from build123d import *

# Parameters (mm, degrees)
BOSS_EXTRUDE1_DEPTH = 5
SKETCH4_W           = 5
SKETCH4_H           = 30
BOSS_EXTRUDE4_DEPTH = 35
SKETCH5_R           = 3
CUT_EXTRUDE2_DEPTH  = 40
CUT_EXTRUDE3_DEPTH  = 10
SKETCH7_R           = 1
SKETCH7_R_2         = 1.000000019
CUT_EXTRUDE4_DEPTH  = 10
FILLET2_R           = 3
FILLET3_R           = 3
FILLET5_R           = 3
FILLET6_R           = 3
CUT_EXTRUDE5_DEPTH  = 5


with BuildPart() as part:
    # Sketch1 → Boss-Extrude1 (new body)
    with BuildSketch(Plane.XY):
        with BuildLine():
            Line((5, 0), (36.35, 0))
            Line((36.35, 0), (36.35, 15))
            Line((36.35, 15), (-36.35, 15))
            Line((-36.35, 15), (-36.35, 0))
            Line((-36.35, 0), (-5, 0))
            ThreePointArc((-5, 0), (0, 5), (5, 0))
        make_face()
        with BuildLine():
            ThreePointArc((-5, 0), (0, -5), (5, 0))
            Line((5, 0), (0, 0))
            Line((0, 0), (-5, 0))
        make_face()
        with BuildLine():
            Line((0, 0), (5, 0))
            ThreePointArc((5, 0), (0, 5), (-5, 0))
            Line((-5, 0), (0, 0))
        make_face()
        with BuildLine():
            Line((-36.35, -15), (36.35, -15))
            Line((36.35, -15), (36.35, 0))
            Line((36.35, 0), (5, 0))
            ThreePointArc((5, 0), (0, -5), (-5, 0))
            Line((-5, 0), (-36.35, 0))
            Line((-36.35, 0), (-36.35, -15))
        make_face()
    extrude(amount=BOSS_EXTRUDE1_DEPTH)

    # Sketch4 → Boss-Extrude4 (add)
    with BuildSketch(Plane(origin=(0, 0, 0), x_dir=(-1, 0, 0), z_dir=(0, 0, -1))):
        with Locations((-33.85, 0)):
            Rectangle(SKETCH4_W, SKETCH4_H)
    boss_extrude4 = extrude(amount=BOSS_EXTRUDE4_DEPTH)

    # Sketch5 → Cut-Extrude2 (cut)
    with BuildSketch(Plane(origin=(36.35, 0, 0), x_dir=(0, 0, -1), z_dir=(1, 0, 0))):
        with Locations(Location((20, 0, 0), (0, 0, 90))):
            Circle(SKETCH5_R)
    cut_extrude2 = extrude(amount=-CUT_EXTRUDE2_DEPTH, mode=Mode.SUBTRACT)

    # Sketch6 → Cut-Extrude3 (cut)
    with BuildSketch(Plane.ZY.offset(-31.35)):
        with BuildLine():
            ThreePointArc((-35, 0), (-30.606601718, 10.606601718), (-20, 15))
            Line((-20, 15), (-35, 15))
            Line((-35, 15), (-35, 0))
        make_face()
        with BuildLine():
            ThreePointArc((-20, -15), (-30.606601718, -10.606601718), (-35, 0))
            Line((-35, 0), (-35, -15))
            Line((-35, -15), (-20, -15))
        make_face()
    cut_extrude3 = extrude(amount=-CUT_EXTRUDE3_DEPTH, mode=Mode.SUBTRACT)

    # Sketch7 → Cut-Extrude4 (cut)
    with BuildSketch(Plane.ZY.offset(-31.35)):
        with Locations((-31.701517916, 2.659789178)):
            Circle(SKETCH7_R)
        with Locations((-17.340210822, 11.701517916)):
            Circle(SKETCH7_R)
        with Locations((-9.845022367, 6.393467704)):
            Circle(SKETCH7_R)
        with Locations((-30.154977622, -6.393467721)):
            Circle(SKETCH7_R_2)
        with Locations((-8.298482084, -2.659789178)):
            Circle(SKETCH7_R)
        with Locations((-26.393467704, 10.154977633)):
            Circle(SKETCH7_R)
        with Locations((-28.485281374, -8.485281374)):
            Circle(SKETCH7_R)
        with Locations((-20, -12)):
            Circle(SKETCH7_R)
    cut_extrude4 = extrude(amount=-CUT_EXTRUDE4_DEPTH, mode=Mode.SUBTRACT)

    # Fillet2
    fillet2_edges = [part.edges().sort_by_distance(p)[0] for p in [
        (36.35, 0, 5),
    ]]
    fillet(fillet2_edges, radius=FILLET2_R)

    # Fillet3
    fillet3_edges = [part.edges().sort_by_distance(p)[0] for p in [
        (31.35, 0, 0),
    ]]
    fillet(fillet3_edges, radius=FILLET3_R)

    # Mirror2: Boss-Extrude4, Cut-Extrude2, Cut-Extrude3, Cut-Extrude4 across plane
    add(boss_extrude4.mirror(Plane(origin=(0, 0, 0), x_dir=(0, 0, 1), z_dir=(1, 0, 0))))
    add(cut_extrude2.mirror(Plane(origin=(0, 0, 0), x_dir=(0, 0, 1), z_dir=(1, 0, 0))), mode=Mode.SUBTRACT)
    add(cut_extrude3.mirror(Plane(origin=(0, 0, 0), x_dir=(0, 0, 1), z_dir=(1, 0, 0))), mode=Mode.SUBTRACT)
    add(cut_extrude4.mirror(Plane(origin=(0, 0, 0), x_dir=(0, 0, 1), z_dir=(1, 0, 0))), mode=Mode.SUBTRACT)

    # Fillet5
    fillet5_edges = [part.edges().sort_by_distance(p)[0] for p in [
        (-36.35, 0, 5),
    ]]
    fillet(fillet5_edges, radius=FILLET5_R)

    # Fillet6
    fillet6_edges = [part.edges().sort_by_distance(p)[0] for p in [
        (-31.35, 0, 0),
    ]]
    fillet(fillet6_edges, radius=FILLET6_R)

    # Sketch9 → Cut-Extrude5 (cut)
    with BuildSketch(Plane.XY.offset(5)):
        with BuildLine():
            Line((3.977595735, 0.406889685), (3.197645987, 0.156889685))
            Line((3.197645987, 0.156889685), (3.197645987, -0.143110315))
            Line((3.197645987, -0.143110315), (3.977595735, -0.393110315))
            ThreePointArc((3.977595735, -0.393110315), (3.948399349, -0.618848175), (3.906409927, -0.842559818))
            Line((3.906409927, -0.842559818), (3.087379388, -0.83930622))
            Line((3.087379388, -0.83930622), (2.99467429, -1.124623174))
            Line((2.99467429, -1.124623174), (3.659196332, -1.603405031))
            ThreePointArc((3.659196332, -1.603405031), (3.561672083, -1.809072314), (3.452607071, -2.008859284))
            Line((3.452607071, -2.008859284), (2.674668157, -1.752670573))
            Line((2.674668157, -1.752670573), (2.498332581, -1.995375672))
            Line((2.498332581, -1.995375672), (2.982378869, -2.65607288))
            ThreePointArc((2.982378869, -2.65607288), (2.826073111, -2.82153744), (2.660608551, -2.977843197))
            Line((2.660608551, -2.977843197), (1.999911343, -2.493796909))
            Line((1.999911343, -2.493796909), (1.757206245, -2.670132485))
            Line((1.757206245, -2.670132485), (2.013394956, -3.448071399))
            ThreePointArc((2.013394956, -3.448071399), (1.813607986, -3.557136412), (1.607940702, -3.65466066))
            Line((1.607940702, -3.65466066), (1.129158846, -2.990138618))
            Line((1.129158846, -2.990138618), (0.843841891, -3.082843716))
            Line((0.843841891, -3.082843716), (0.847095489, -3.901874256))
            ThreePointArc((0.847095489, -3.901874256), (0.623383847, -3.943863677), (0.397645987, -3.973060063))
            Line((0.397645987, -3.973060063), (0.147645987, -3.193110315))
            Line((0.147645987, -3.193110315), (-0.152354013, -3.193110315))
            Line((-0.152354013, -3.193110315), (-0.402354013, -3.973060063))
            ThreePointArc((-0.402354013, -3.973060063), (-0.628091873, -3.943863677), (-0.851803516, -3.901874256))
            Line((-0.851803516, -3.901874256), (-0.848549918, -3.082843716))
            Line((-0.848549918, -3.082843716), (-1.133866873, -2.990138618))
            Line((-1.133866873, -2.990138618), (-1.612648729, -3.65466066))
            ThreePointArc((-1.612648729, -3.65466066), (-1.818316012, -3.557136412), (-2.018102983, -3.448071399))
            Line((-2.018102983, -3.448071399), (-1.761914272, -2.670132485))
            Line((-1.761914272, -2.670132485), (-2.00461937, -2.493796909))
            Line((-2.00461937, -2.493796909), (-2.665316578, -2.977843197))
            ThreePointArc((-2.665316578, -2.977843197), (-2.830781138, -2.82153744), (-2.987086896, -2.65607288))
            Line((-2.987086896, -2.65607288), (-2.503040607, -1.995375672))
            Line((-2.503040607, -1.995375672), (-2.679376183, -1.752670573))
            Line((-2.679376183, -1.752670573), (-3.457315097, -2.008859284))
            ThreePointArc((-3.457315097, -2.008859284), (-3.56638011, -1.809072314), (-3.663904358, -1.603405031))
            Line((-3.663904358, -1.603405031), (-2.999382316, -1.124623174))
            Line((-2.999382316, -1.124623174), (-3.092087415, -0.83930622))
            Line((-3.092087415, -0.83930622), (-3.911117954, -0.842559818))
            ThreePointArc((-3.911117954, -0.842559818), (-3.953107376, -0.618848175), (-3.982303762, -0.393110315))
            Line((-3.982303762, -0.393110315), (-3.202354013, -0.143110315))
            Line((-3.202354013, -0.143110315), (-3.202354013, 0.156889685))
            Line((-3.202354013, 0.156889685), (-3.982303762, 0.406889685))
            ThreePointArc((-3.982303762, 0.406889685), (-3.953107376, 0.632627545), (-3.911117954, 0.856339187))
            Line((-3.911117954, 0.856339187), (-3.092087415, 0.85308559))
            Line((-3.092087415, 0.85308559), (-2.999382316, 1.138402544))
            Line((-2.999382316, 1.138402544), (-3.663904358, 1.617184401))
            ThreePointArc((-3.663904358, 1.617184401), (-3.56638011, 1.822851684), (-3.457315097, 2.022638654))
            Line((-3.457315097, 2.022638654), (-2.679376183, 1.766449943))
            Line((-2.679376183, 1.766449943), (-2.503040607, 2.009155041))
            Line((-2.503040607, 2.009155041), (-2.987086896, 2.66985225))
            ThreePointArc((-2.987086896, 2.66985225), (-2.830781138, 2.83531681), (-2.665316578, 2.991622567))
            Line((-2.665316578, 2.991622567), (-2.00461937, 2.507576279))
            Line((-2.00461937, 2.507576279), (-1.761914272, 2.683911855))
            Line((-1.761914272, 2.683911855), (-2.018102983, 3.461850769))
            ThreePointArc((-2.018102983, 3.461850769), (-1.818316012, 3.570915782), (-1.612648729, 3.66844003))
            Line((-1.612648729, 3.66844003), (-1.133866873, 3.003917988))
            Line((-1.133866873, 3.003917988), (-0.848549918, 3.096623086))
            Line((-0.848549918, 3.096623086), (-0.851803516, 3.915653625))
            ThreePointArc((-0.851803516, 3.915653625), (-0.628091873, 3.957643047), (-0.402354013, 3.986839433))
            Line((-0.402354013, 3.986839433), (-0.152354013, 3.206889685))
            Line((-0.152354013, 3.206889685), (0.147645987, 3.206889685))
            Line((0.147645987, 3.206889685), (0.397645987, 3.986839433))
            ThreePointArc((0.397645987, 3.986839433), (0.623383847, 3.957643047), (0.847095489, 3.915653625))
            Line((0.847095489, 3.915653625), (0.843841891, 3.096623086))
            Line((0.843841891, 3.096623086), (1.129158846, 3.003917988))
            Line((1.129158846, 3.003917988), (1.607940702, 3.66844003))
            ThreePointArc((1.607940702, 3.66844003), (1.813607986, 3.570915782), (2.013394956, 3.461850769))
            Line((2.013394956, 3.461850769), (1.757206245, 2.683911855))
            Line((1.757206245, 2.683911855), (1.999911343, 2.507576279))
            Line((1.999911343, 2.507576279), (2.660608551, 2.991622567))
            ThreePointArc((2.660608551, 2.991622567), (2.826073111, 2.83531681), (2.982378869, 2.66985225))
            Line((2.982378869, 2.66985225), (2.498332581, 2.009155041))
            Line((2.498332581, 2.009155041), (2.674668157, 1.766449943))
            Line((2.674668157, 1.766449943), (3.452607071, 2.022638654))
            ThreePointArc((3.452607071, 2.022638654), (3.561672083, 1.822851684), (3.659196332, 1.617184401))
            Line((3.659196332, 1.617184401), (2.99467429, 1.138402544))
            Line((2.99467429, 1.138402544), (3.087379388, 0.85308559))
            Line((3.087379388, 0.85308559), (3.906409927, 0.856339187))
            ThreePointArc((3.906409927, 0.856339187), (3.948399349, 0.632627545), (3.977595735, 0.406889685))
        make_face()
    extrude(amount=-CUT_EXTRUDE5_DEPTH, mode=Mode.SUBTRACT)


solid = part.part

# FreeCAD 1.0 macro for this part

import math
import FreeCAD as App
import Part
import Sketcher

V = App.Vector


def edges_at(feature, points):
    """Names of the edges that pass closest to the given points."""
    edges = feature.Shape.Edges
    near = lambda p: min(range(len(edges)), key=lambda i: edges[i].distToShape(Part.Vertex(*p))[0])
    return sorted({f"Edge{near(p) + 1}" for p in points})

doc = App.newDocument("Part")
body = doc.addObject("PartDesign::Body", "Body")

# Sketch on XY plane
sketch1 = body.newObject("Sketcher::SketchObject", "Sketch")
sketch1.AttachmentSupport = (doc.getObject("XY_Plane"), [""])
sketch1.MapMode = "FlatFace"
sketch1.addGeometry(Part.LineSegment(V(-36, 15, 0), V(-36, -15, 0)), False)
sketch1.addGeometry(Part.LineSegment(V(-36, -15, 0), V(36, -15, 0)), False)
sketch1.addGeometry(Part.LineSegment(V(36, -15, 0), V(36, 15, 0)), False)
sketch1.addGeometry(Part.LineSegment(V(36, 15, 0), V(-36, 15, 0)), False)
sketch1.addConstraint(Sketcher.Constraint("Coincident", 0, 2, 1, 1))
sketch1.addConstraint(Sketcher.Constraint("Coincident", 1, 2, 2, 1))
sketch1.addConstraint(Sketcher.Constraint("Coincident", 2, 2, 3, 1))
sketch1.addConstraint(Sketcher.Constraint("Coincident", 3, 2, 0, 1))
sketch1.addConstraint(Sketcher.Constraint("Vertical", 0))
sketch1.addConstraint(Sketcher.Constraint("Horizontal", 1))
sketch1.addConstraint(Sketcher.Constraint("Vertical", 2))
sketch1.addConstraint(Sketcher.Constraint("Horizontal", 3))
sketch1.addConstraint(Sketcher.Constraint("Symmetric", 0, 2, 2, 2, -1, 1))
sketch1.addConstraint(Sketcher.Constraint("DistanceY", 0, 2, 0, 1, 30.0))
sketch1.addConstraint(Sketcher.Constraint("DistanceX", 1, 1, 1, 2, 72.7))
pad1 = body.newObject("PartDesign::Pad", "Pad")
pad1.Profile = sketch1
pad1.Length = 5

# Sketch on XY plane
sketch2 = body.newObject("Sketcher::SketchObject", "Sketch001")
sketch2.AttachmentSupport = (doc.getObject("XY_Plane"), [""])
sketch2.MapMode = "FlatFace"
sketch2.addGeometry(Part.LineSegment(V(36, 15, 0), V(36, -15, 0)), False)
sketch2.addGeometry(Part.LineSegment(V(36, -15, 0), V(31, -15, 0)), False)
sketch2.addGeometry(Part.LineSegment(V(31, -15, 0), V(31, 15, 0)), False)
sketch2.addGeometry(Part.LineSegment(V(31, 15, 0), V(36, 15, 0)), False)
sketch2.addConstraint(Sketcher.Constraint("Coincident", 0, 2, 1, 1))
sketch2.addConstraint(Sketcher.Constraint("Coincident", 1, 2, 2, 1))
sketch2.addConstraint(Sketcher.Constraint("Coincident", 2, 2, 3, 1))
sketch2.addConstraint(Sketcher.Constraint("Coincident", 3, 2, 0, 1))
sketch2.addConstraint(Sketcher.Constraint("Vertical", 0))
sketch2.addConstraint(Sketcher.Constraint("Horizontal", 1))
sketch2.addConstraint(Sketcher.Constraint("Vertical", 2))
sketch2.addConstraint(Sketcher.Constraint("Horizontal", 3))
sketch2.addConstraint(Sketcher.Constraint("DistanceX", 1, 2, 1, 1, 5.0))
sketch2.addConstraint(Sketcher.Constraint("DistanceY", 0, 2, 0, 1, 30.0))
sketch2.addConstraint(Sketcher.Constraint("DistanceY", 0, 2, -1, 1, 15.0))
sketch2.addConstraint(Sketcher.Constraint("DistanceX", -1, 1, 0, 2, 36.35))
pad2 = body.newObject("PartDesign::Pad", "Pad001")
pad2.Profile = sketch2
pad2.Length = 35
pad2.Reversed = True

# Sketch on YZ plane
sketch3 = body.newObject("Sketcher::SketchObject", "Sketch002")
sketch3.AttachmentSupport = (doc.getObject("YZ_Plane"), [""])
sketch3.MapMode = "FlatFace"
sketch3.AttachmentOffset = App.Placement(V(0, 0, 36.35), App.Rotation())
sketch3.addGeometry(Part.Circle(V(0, -20, 0), V(0, 0, 1), 3), False)
sketch3.addConstraint(Sketcher.Constraint("PointOnObject", 0, 3, -2))
sketch3.addConstraint(Sketcher.Constraint("Diameter", 0, 6.0))
sketch3.addConstraint(Sketcher.Constraint("DistanceY", 0, 3, -1, 1, 20.0))
pocket1 = body.newObject("PartDesign::Pocket", "Pocket")
pocket1.Profile = sketch3
pocket1.Length = 40

# Sketch on YZ plane
sketch4 = body.newObject("Sketcher::SketchObject", "Sketch003")
sketch4.AttachmentSupport = (doc.getObject("YZ_Plane"), [""])
sketch4.MapMode = "FlatFace"
sketch4.AttachmentOffset = App.Placement(V(0, 0, 31.35), App.Rotation())
sketch4.addGeometry(Part.ArcOfCircle(Part.Circle(V(0, -20, 0), V(0, 0, 1), 15), math.radians(-90), math.radians(0)), False)
sketch4.addGeometry(Part.LineSegment(V(15, -20, 0), V(15, -35, 0)), False)
sketch4.addGeometry(Part.LineSegment(V(15, -35, 0), V(0, -35, 0)), False)
sketch4.addGeometry(Part.ArcOfCircle(Part.Circle(V(0, -20, 0), V(0, 0, 1), 15), math.radians(180), math.radians(270)), False)
sketch4.addGeometry(Part.LineSegment(V(0, -35, 0), V(-15, -35, 0)), False)
sketch4.addGeometry(Part.LineSegment(V(-15, -35, 0), V(-15, -20, 0)), False)
sketch4.addConstraint(Sketcher.Constraint("Tangent", 0, 2, 1, 1))
sketch4.addConstraint(Sketcher.Constraint("Coincident", 1, 2, 2, 1))
sketch4.addConstraint(Sketcher.Constraint("Tangent", 2, 2, 0, 1))
sketch4.addConstraint(Sketcher.Constraint("Tangent", 3, 2, 4, 1))
sketch4.addConstraint(Sketcher.Constraint("Coincident", 4, 2, 5, 1))
sketch4.addConstraint(Sketcher.Constraint("Tangent", 5, 2, 3, 1))
sketch4.addConstraint(Sketcher.Constraint("Vertical", 1))
sketch4.addConstraint(Sketcher.Constraint("Horizontal", 2))
sketch4.addConstraint(Sketcher.Constraint("Horizontal", 4))
sketch4.addConstraint(Sketcher.Constraint("Vertical", 5))
sketch4.addConstraint(Sketcher.Constraint("Coincident", 3, 3, 0, 3))
sketch4.addConstraint(Sketcher.Constraint("Equal", 0, 3))
sketch4.addConstraint(Sketcher.Constraint("PointOnObject", 0, 3, -2))
sketch4.addConstraint(Sketcher.Constraint("Radius", 0, 15.0))
sketch4.addConstraint(Sketcher.Constraint("DistanceY", 0, 3, -1, 1, 20.0))
pocket2 = body.newObject("PartDesign::Pocket", "Pocket001")
pocket2.Profile = sketch4
pocket2.Length = 10
pocket2.Reversed = True

# Sketch on YZ plane
sketch5 = body.newObject("Sketcher::SketchObject", "Sketch004")
sketch5.AttachmentSupport = (doc.getObject("YZ_Plane"), [""])
sketch5.MapMode = "FlatFace"
sketch5.AttachmentOffset = App.Placement(V(0, 0, 31.35), App.Rotation())
sketch5.addGeometry(Part.Circle(V(2.7, -31.7, 0), V(0, 0, 1), 1), False)
sketch5.addGeometry(Part.Circle(V(11.7, -17.3, 0), V(0, 0, 1), 1), False)
sketch5.addGeometry(Part.Circle(V(6.4, -9.8, 0), V(0, 0, 1), 1), False)
sketch5.addGeometry(Part.Circle(V(-6.4, -30.2, 0), V(0, 0, 1), 1), False)
sketch5.addGeometry(Part.Circle(V(-2.7, -8.3, 0), V(0, 0, 1), 1), False)
sketch5.addGeometry(Part.Circle(V(10.2, -26.4, 0), V(0, 0, 1), 1), False)
sketch5.addGeometry(Part.Circle(V(-8.5, -28.5, 0), V(0, 0, 1), 1), False)
sketch5.addGeometry(Part.Circle(V(-12, -20, 0), V(0, 0, 1), 1), False)
sketch5.addConstraint(Sketcher.Constraint("Equal", 0, 1))
sketch5.addConstraint(Sketcher.Constraint("Equal", 1, 2))
sketch5.addConstraint(Sketcher.Constraint("Equal", 2, 3))
sketch5.addConstraint(Sketcher.Constraint("Equal", 3, 4))
sketch5.addConstraint(Sketcher.Constraint("Equal", 4, 5))
sketch5.addConstraint(Sketcher.Constraint("Equal", 5, 6))
sketch5.addConstraint(Sketcher.Constraint("Equal", 6, 7))
sketch5.addConstraint(Sketcher.Constraint("Diameter", 0, 2.0))
sketch5.addConstraint(Sketcher.Constraint("DistanceX", 7, 3, -1, 1, 12.0))
sketch5.addConstraint(Sketcher.Constraint("DistanceY", 7, 3, -1, 1, 20.0))
sketch5.addConstraint(Sketcher.Constraint("DistanceY", 6, 3, 4, 3, 20.186799))
sketch5.addConstraint(Sketcher.Constraint("DistanceX", 6, 3, 1, 3, 20.186799))
sketch5.addConstraint(Sketcher.Constraint("DistanceX", -1, 1, 0, 3, 2.659789))
sketch5.addConstraint(Sketcher.Constraint("DistanceY", 1, 3, -1, 1, 17.340211))
sketch5.addConstraint(Sketcher.Constraint("DistanceX", 4, 3, -1, 1, 2.659789))
sketch5.addConstraint(Sketcher.Constraint("DistanceX", 6, 3, -1, 1, 8.485281))
sketch5.addConstraint(Sketcher.Constraint("DistanceY", 6, 3, -1, 1, 28.485281))
sketch5.addConstraint(Sketcher.Constraint("DistanceX", 2, 3, 1, 3, 5.30805))
sketch5.addConstraint(Sketcher.Constraint("DistanceY", 1, 3, 2, 3, 7.495188))
sketch5.addConstraint(Sketcher.Constraint("DistanceY", 0, 3, 3, 3, 1.54654))
sketch5.addConstraint(Sketcher.Constraint("DistanceX", 3, 3, 4, 3, 3.733679))
sketch5.addConstraint(Sketcher.Constraint("DistanceX", 5, 3, 1, 3, 1.54654))
sketch5.addConstraint(Sketcher.Constraint("DistanceY", 0, 3, 5, 3, 5.30805))
sketch5.addConstraint(Sketcher.Constraint("DistanceY", 0, 3, -1, 1, 31.701518))
pocket3 = body.newObject("PartDesign::Pocket", "Pocket002")
pocket3.Profile = sketch5
pocket3.Length = 10
pocket3.Reversed = True
doc.recompute()

fillet = body.newObject("PartDesign::Fillet", "Fillet")
fillet.Base = (pocket3, edges_at(pocket3, [(36.35, 0, 5)]))
fillet.Radius = 3
doc.recompute()

fillet2 = body.newObject("PartDesign::Fillet", "Fillet001")
fillet2.Base = (fillet, edges_at(fillet, [(31.35, 0, 0)]))
fillet2.Radius = 3
doc.recompute()

mirrored = body.newObject("PartDesign::Mirrored", "Mirrored")
mirrored.Originals = [pad2, pocket1, pocket2, pocket3]
mirrored.MirrorPlane = (doc.getObject("YZ_Plane"), [""])
body.Tip = mirrored
doc.recompute()

fillet3 = body.newObject("PartDesign::Fillet", "Fillet002")
fillet3.Base = (mirrored, edges_at(mirrored, [(-36.35, 0, 5)]))
fillet3.Radius = 3
doc.recompute()

fillet4 = body.newObject("PartDesign::Fillet", "Fillet003")
fillet4.Base = (fillet3, edges_at(fillet3, [(-31.35, 0, 0)]))
fillet4.Radius = 3

# Sketch on XY plane
sketch6 = body.newObject("Sketcher::SketchObject", "Sketch005")
sketch6.AttachmentSupport = (doc.getObject("XY_Plane"), [""])
sketch6.MapMode = "FlatFace"
sketch6.AttachmentOffset = App.Placement(V(0, 0, 5), App.Rotation())
sketch6.addGeometry(Part.LineSegment(V(3.197646, 0.15689, 0), V(3.977596, 0.40689, 0)), False)
sketch6.addGeometry(Part.ArcOfCircle(Part.Circle(V(-0.002354, 0.00689, 0), V(0, 0, 1), 4), math.radians(5.73917), math.radians(12.26083)), False)
sketch6.addGeometry(Part.LineSegment(V(3.90641, 0.856339, 0), V(3.087379, 0.853086, 0)), False)
sketch6.addGeometry(Part.LineSegment(V(3.087379, 0.853086, 0), V(2.994674, 1.138403, 0)), False)
sketch6.addGeometry(Part.LineSegment(V(2.994674, 1.138403, 0), V(3.659196, 1.617184, 0)), False)
sketch6.addGeometry(Part.ArcOfCircle(Part.Circle(V(-0.002354, 0.00689, 0), V(0, 0, 1), 4), math.radians(23.739171), math.radians(30.260829)), False)
sketch6.addGeometry(Part.LineSegment(V(3.452607, 2.022639, 0), V(2.674668, 1.76645, 0)), False)
sketch6.addGeometry(Part.LineSegment(V(2.674668, 1.76645, 0), V(2.498333, 2.009155, 0)), False)
sketch6.addGeometry(Part.LineSegment(V(2.498333, 2.009155, 0), V(2.982379, 2.669852, 0)), False)
sketch6.addGeometry(Part.ArcOfCircle(Part.Circle(V(-0.002354, 0.00689, 0), V(0, 0, 1), 4), math.radians(41.739171), math.radians(48.26083)), False)
sketch6.addGeometry(Part.LineSegment(V(2.660609, 2.991623, 0), V(1.999911, 2.507576, 0)), False)
sketch6.addGeometry(Part.LineSegment(V(1.999911, 2.507576, 0), V(1.757206, 2.683912, 0)), False)
sketch6.addGeometry(Part.LineSegment(V(1.757206, 2.683912, 0), V(2.013395, 3.461851, 0)), False)
sketch6.addGeometry(Part.ArcOfCircle(Part.Circle(V(-0.002354, 0.00689, 0), V(0, 0, 1), 4), math.radians(59.73917), math.radians(66.26083)), False)
sketch6.addGeometry(Part.LineSegment(V(1.607941, 3.66844, 0), V(1.129159, 3.003918, 0)), False)
sketch6.addGeometry(Part.LineSegment(V(1.129159, 3.003918, 0), V(0.843842, 3.096623, 0)), False)
sketch6.addGeometry(Part.LineSegment(V(0.843842, 3.096623, 0), V(0.847095, 3.915654, 0)), False)
sketch6.addGeometry(Part.ArcOfCircle(Part.Circle(V(-0.002354, 0.00689, 0), V(0, 0, 1), 4), math.radians(77.73917), math.radians(84.26083)), False)
sketch6.addGeometry(Part.LineSegment(V(0.397646, 3.986839, 0), V(0.147646, 3.20689, 0)), False)
sketch6.addGeometry(Part.LineSegment(V(0.147646, 3.20689, 0), V(-0.152354, 3.20689, 0)), False)
sketch6.addGeometry(Part.LineSegment(V(-0.152354, 3.20689, 0), V(-0.402354, 3.986839, 0)), False)
sketch6.addGeometry(Part.ArcOfCircle(Part.Circle(V(-0.002354, 0.00689, 0), V(0, 0, 1), 4), math.radians(95.73917), math.radians(102.26083)), False)
sketch6.addGeometry(Part.LineSegment(V(-0.851804, 3.915654, 0), V(-0.84855, 3.096623, 0)), False)
sketch6.addGeometry(Part.LineSegment(V(-0.84855, 3.096623, 0), V(-1.133867, 3.003918, 0)), False)
sketch6.addGeometry(Part.LineSegment(V(-1.133867, 3.003918, 0), V(-1.612649, 3.66844, 0)), False)
sketch6.addGeometry(Part.ArcOfCircle(Part.Circle(V(-0.002354, 0.00689, 0), V(0, 0, 1), 4), math.radians(113.73917), math.radians(120.26083)), False)
sketch6.addGeometry(Part.LineSegment(V(-2.018103, 3.461851, 0), V(-1.761914, 2.683912, 0)), False)
sketch6.addGeometry(Part.LineSegment(V(-1.761914, 2.683912, 0), V(-2.004619, 2.507576, 0)), False)
sketch6.addGeometry(Part.LineSegment(V(-2.004619, 2.507576, 0), V(-2.665317, 2.991623, 0)), False)
sketch6.addGeometry(Part.ArcOfCircle(Part.Circle(V(-0.002354, 0.00689, 0), V(0, 0, 1), 4), math.radians(131.73917), math.radians(138.260829)), False)
sketch6.addGeometry(Part.LineSegment(V(-2.987087, 2.669852, 0), V(-2.503041, 2.009155, 0)), False)
sketch6.addGeometry(Part.LineSegment(V(-2.503041, 2.009155, 0), V(-2.679376, 1.76645, 0)), False)
sketch6.addGeometry(Part.LineSegment(V(-2.679376, 1.76645, 0), V(-3.457315, 2.022639, 0)), False)
sketch6.addGeometry(Part.ArcOfCircle(Part.Circle(V(-0.002354, 0.00689, 0), V(0, 0, 1), 4), math.radians(149.73917), math.radians(156.26083)), False)
sketch6.addGeometry(Part.LineSegment(V(-3.663904, 1.617184, 0), V(-2.999382, 1.138403, 0)), False)
sketch6.addGeometry(Part.LineSegment(V(-2.999382, 1.138403, 0), V(-3.092087, 0.853086, 0)), False)
sketch6.addGeometry(Part.LineSegment(V(-3.092087, 0.853086, 0), V(-3.911118, 0.856339, 0)), False)
sketch6.addGeometry(Part.ArcOfCircle(Part.Circle(V(-0.002354, 0.00689, 0), V(0, 0, 1), 4), math.radians(167.73917), math.radians(174.26083)), False)
sketch6.addGeometry(Part.LineSegment(V(-3.982304, 0.40689, 0), V(-3.202354, 0.15689, 0)), False)
sketch6.addGeometry(Part.LineSegment(V(-3.202354, 0.15689, 0), V(-3.202354, -0.14311, 0)), False)
sketch6.addGeometry(Part.LineSegment(V(-3.202354, -0.14311, 0), V(-3.982304, -0.39311, 0)), False)
sketch6.addGeometry(Part.ArcOfCircle(Part.Circle(V(-0.002354, 0.00689, 0), V(0, 0, 1), 4), math.radians(-174.26083), math.radians(-167.73917)), False)
sketch6.addGeometry(Part.LineSegment(V(-3.911118, -0.84256, 0), V(-3.092087, -0.839306, 0)), False)
sketch6.addGeometry(Part.LineSegment(V(-3.092087, -0.839306, 0), V(-2.999382, -1.124623, 0)), False)
sketch6.addGeometry(Part.LineSegment(V(-2.999382, -1.124623, 0), V(-3.663904, -1.603405, 0)), False)
sketch6.addGeometry(Part.ArcOfCircle(Part.Circle(V(-0.002354, 0.00689, 0), V(0, 0, 1), 4), math.radians(-156.26083), math.radians(-149.73917)), False)
sketch6.addGeometry(Part.LineSegment(V(-3.457315, -2.008859, 0), V(-2.679376, -1.752671, 0)), False)
sketch6.addGeometry(Part.LineSegment(V(-2.679376, -1.752671, 0), V(-2.503041, -1.995376, 0)), False)
sketch6.addGeometry(Part.LineSegment(V(-2.503041, -1.995376, 0), V(-2.987087, -2.656073, 0)), False)
sketch6.addGeometry(Part.ArcOfCircle(Part.Circle(V(-0.002354, 0.00689, 0), V(0, 0, 1), 4), math.radians(-138.260829), math.radians(-131.73917)), False)
sketch6.addGeometry(Part.LineSegment(V(-2.665317, -2.977843, 0), V(-2.004619, -2.493797, 0)), False)
sketch6.addGeometry(Part.LineSegment(V(-2.004619, -2.493797, 0), V(-1.761914, -2.670132, 0)), False)
sketch6.addGeometry(Part.LineSegment(V(-1.761914, -2.670132, 0), V(-2.018103, -3.448071, 0)), False)
sketch6.addGeometry(Part.ArcOfCircle(Part.Circle(V(-0.002354, 0.00689, 0), V(0, 0, 1), 4), math.radians(-120.26083), math.radians(-113.73917)), False)
sketch6.addGeometry(Part.LineSegment(V(-1.612649, -3.654661, 0), V(-1.133867, -2.990139, 0)), False)
sketch6.addGeometry(Part.LineSegment(V(-1.133867, -2.990139, 0), V(-0.84855, -3.082844, 0)), False)
sketch6.addGeometry(Part.LineSegment(V(-0.84855, -3.082844, 0), V(-0.851804, -3.901874, 0)), False)
sketch6.addGeometry(Part.ArcOfCircle(Part.Circle(V(-0.002354, 0.00689, 0), V(0, 0, 1), 4), math.radians(-102.260829), math.radians(-95.739171)), False)
sketch6.addGeometry(Part.LineSegment(V(-0.402354, -3.97306, 0), V(-0.152354, -3.19311, 0)), False)
sketch6.addGeometry(Part.LineSegment(V(-0.152354, -3.19311, 0), V(0.147646, -3.19311, 0)), False)
sketch6.addGeometry(Part.LineSegment(V(0.147646, -3.19311, 0), V(0.397646, -3.97306, 0)), False)
sketch6.addGeometry(Part.ArcOfCircle(Part.Circle(V(-0.002354, 0.00689, 0), V(0, 0, 1), 4), math.radians(-84.260829), math.radians(-77.739171)), False)
sketch6.addGeometry(Part.LineSegment(V(0.847095, -3.901874, 0), V(0.843842, -3.082844, 0)), False)
sketch6.addGeometry(Part.LineSegment(V(0.843842, -3.082844, 0), V(1.129159, -2.990139, 0)), False)
sketch6.addGeometry(Part.LineSegment(V(1.129159, -2.990139, 0), V(1.607941, -3.654661, 0)), False)
sketch6.addGeometry(Part.ArcOfCircle(Part.Circle(V(-0.002354, 0.006889, 0), V(0, 0, 1), 4), math.radians(-66.26083), math.radians(-59.73917)), False)
sketch6.addGeometry(Part.LineSegment(V(2.013395, -3.448071, 0), V(1.757206, -2.670132, 0)), False)
sketch6.addGeometry(Part.LineSegment(V(1.757206, -2.670132, 0), V(1.999911, -2.493797, 0)), False)
sketch6.addGeometry(Part.LineSegment(V(1.999911, -2.493797, 0), V(2.660609, -2.977843, 0)), False)
sketch6.addGeometry(Part.ArcOfCircle(Part.Circle(V(-0.002354, 0.00689, 0), V(0, 0, 1), 4), math.radians(-48.26083), math.radians(-41.739171)), False)
sketch6.addGeometry(Part.LineSegment(V(2.982379, -2.656073, 0), V(2.498333, -1.995376, 0)), False)
sketch6.addGeometry(Part.LineSegment(V(2.498333, -1.995376, 0), V(2.674668, -1.752671, 0)), False)
sketch6.addGeometry(Part.LineSegment(V(2.674668, -1.752671, 0), V(3.452607, -2.008859, 0)), False)
sketch6.addGeometry(Part.ArcOfCircle(Part.Circle(V(-0.002354, 0.00689, 0), V(0, 0, 1), 4), math.radians(-30.260829), math.radians(-23.739171)), False)
sketch6.addGeometry(Part.LineSegment(V(3.659196, -1.603405, 0), V(2.994674, -1.124623, 0)), False)
sketch6.addGeometry(Part.LineSegment(V(2.994674, -1.124623, 0), V(3.087379, -0.839306, 0)), False)
sketch6.addGeometry(Part.LineSegment(V(3.087379, -0.839306, 0), V(3.90641, -0.84256, 0)), False)
sketch6.addGeometry(Part.ArcOfCircle(Part.Circle(V(-0.002354, 0.00689, 0), V(0, 0, 1), 4), math.radians(-12.26083), math.radians(-5.73917)), False)
sketch6.addGeometry(Part.LineSegment(V(3.977596, -0.39311, 0), V(3.197646, -0.14311, 0)), False)
sketch6.addGeometry(Part.LineSegment(V(3.197646, -0.14311, 0), V(3.197646, 0.15689, 0)), False)
sketch6.addConstraint(Sketcher.Constraint("Coincident", 0, 2, 1, 1))
sketch6.addConstraint(Sketcher.Constraint("Coincident", 1, 2, 2, 1))
sketch6.addConstraint(Sketcher.Constraint("Coincident", 2, 2, 3, 1))
sketch6.addConstraint(Sketcher.Constraint("Coincident", 3, 2, 4, 1))
sketch6.addConstraint(Sketcher.Constraint("Coincident", 4, 2, 5, 1))
sketch6.addConstraint(Sketcher.Constraint("Coincident", 5, 2, 6, 1))
sketch6.addConstraint(Sketcher.Constraint("Coincident", 6, 2, 7, 1))
sketch6.addConstraint(Sketcher.Constraint("Coincident", 7, 2, 8, 1))
sketch6.addConstraint(Sketcher.Constraint("Coincident", 8, 2, 9, 1))
sketch6.addConstraint(Sketcher.Constraint("Coincident", 9, 2, 10, 1))
sketch6.addConstraint(Sketcher.Constraint("Coincident", 10, 2, 11, 1))
sketch6.addConstraint(Sketcher.Constraint("Coincident", 11, 2, 12, 1))
sketch6.addConstraint(Sketcher.Constraint("Coincident", 12, 2, 13, 1))
sketch6.addConstraint(Sketcher.Constraint("Coincident", 13, 2, 14, 1))
sketch6.addConstraint(Sketcher.Constraint("Coincident", 14, 2, 15, 1))
sketch6.addConstraint(Sketcher.Constraint("Coincident", 15, 2, 16, 1))
sketch6.addConstraint(Sketcher.Constraint("Coincident", 16, 2, 17, 1))
sketch6.addConstraint(Sketcher.Constraint("Coincident", 17, 2, 18, 1))
sketch6.addConstraint(Sketcher.Constraint("Coincident", 18, 2, 19, 1))
sketch6.addConstraint(Sketcher.Constraint("Coincident", 19, 2, 20, 1))
sketch6.addConstraint(Sketcher.Constraint("Coincident", 20, 2, 21, 1))
sketch6.addConstraint(Sketcher.Constraint("Coincident", 21, 2, 22, 1))
sketch6.addConstraint(Sketcher.Constraint("Coincident", 22, 2, 23, 1))
sketch6.addConstraint(Sketcher.Constraint("Coincident", 23, 2, 24, 1))
sketch6.addConstraint(Sketcher.Constraint("Coincident", 24, 2, 25, 1))
sketch6.addConstraint(Sketcher.Constraint("Coincident", 25, 2, 26, 1))
sketch6.addConstraint(Sketcher.Constraint("Coincident", 26, 2, 27, 1))
sketch6.addConstraint(Sketcher.Constraint("Coincident", 27, 2, 28, 1))
sketch6.addConstraint(Sketcher.Constraint("Coincident", 28, 2, 29, 1))
sketch6.addConstraint(Sketcher.Constraint("Coincident", 29, 2, 30, 1))
sketch6.addConstraint(Sketcher.Constraint("Coincident", 30, 2, 31, 1))
sketch6.addConstraint(Sketcher.Constraint("Coincident", 31, 2, 32, 1))
sketch6.addConstraint(Sketcher.Constraint("Coincident", 32, 2, 33, 1))
sketch6.addConstraint(Sketcher.Constraint("Coincident", 33, 2, 34, 1))
sketch6.addConstraint(Sketcher.Constraint("Coincident", 34, 2, 35, 1))
sketch6.addConstraint(Sketcher.Constraint("Coincident", 35, 2, 36, 1))
sketch6.addConstraint(Sketcher.Constraint("Coincident", 36, 2, 37, 1))
sketch6.addConstraint(Sketcher.Constraint("Coincident", 37, 2, 38, 1))
sketch6.addConstraint(Sketcher.Constraint("Coincident", 38, 2, 39, 1))
sketch6.addConstraint(Sketcher.Constraint("Coincident", 39, 2, 40, 1))
sketch6.addConstraint(Sketcher.Constraint("Coincident", 40, 2, 41, 1))
sketch6.addConstraint(Sketcher.Constraint("Coincident", 41, 2, 42, 1))
sketch6.addConstraint(Sketcher.Constraint("Coincident", 42, 2, 43, 1))
sketch6.addConstraint(Sketcher.Constraint("Coincident", 43, 2, 44, 1))
sketch6.addConstraint(Sketcher.Constraint("Coincident", 44, 2, 45, 1))
sketch6.addConstraint(Sketcher.Constraint("Coincident", 45, 2, 46, 1))
sketch6.addConstraint(Sketcher.Constraint("Coincident", 46, 2, 47, 1))
sketch6.addConstraint(Sketcher.Constraint("Coincident", 47, 2, 48, 1))
sketch6.addConstraint(Sketcher.Constraint("Coincident", 48, 2, 49, 1))
sketch6.addConstraint(Sketcher.Constraint("Coincident", 49, 2, 50, 1))
sketch6.addConstraint(Sketcher.Constraint("Coincident", 50, 2, 51, 1))
sketch6.addConstraint(Sketcher.Constraint("Coincident", 51, 2, 52, 1))
sketch6.addConstraint(Sketcher.Constraint("Coincident", 52, 2, 53, 1))
sketch6.addConstraint(Sketcher.Constraint("Coincident", 53, 2, 54, 1))
sketch6.addConstraint(Sketcher.Constraint("Coincident", 54, 2, 55, 1))
sketch6.addConstraint(Sketcher.Constraint("Coincident", 55, 2, 56, 1))
sketch6.addConstraint(Sketcher.Constraint("Coincident", 56, 2, 57, 1))
sketch6.addConstraint(Sketcher.Constraint("Coincident", 57, 2, 58, 1))
sketch6.addConstraint(Sketcher.Constraint("Coincident", 58, 2, 59, 1))
sketch6.addConstraint(Sketcher.Constraint("Coincident", 59, 2, 60, 1))
sketch6.addConstraint(Sketcher.Constraint("Coincident", 60, 2, 61, 1))
sketch6.addConstraint(Sketcher.Constraint("Coincident", 61, 2, 62, 1))
sketch6.addConstraint(Sketcher.Constraint("Coincident", 62, 2, 63, 1))
sketch6.addConstraint(Sketcher.Constraint("Coincident", 63, 2, 64, 1))
sketch6.addConstraint(Sketcher.Constraint("Coincident", 64, 2, 65, 1))
sketch6.addConstraint(Sketcher.Constraint("Coincident", 65, 2, 66, 1))
sketch6.addConstraint(Sketcher.Constraint("Coincident", 66, 2, 67, 1))
sketch6.addConstraint(Sketcher.Constraint("Coincident", 67, 2, 68, 1))
sketch6.addConstraint(Sketcher.Constraint("Coincident", 68, 2, 69, 1))
sketch6.addConstraint(Sketcher.Constraint("Coincident", 69, 2, 70, 1))
sketch6.addConstraint(Sketcher.Constraint("Coincident", 70, 2, 71, 1))
sketch6.addConstraint(Sketcher.Constraint("Coincident", 71, 2, 72, 1))
sketch6.addConstraint(Sketcher.Constraint("Coincident", 72, 2, 73, 1))
sketch6.addConstraint(Sketcher.Constraint("Coincident", 73, 2, 74, 1))
sketch6.addConstraint(Sketcher.Constraint("Coincident", 74, 2, 75, 1))
sketch6.addConstraint(Sketcher.Constraint("Coincident", 75, 2, 76, 1))
sketch6.addConstraint(Sketcher.Constraint("Coincident", 76, 2, 77, 1))
sketch6.addConstraint(Sketcher.Constraint("Coincident", 77, 2, 78, 1))
sketch6.addConstraint(Sketcher.Constraint("Coincident", 78, 2, 79, 1))
sketch6.addConstraint(Sketcher.Constraint("Coincident", 79, 2, 0, 1))
sketch6.addConstraint(Sketcher.Constraint("Horizontal", 19))
sketch6.addConstraint(Sketcher.Constraint("Vertical", 39))
sketch6.addConstraint(Sketcher.Constraint("Horizontal", 59))
sketch6.addConstraint(Sketcher.Constraint("Vertical", 79))
sketch6.addConstraint(Sketcher.Constraint("Coincident", 5, 3, 1, 3))
sketch6.addConstraint(Sketcher.Constraint("Coincident", 9, 3, 1, 3))
sketch6.addConstraint(Sketcher.Constraint("Coincident", 13, 3, 1, 3))
sketch6.addConstraint(Sketcher.Constraint("Coincident", 17, 3, 1, 3))
sketch6.addConstraint(Sketcher.Constraint("Coincident", 21, 3, 1, 3))
sketch6.addConstraint(Sketcher.Constraint("Coincident", 25, 3, 1, 3))
sketch6.addConstraint(Sketcher.Constraint("Coincident", 29, 3, 1, 3))
sketch6.addConstraint(Sketcher.Constraint("Coincident", 33, 3, 1, 3))
sketch6.addConstraint(Sketcher.Constraint("Coincident", 37, 3, 1, 3))
sketch6.addConstraint(Sketcher.Constraint("Coincident", 41, 3, 1, 3))
sketch6.addConstraint(Sketcher.Constraint("Coincident", 45, 3, 1, 3))
sketch6.addConstraint(Sketcher.Constraint("Coincident", 49, 3, 1, 3))
sketch6.addConstraint(Sketcher.Constraint("Coincident", 53, 3, 1, 3))
sketch6.addConstraint(Sketcher.Constraint("Coincident", 57, 3, 1, 3))
sketch6.addConstraint(Sketcher.Constraint("Coincident", 61, 3, 1, 3))
sketch6.addConstraint(Sketcher.Constraint("Coincident", 65, 3, 1, 3))
sketch6.addConstraint(Sketcher.Constraint("Coincident", 69, 3, 1, 3))
sketch6.addConstraint(Sketcher.Constraint("Coincident", 73, 3, 1, 3))
sketch6.addConstraint(Sketcher.Constraint("Coincident", 77, 3, 1, 3))
sketch6.addConstraint(Sketcher.Constraint("Radius", 1, 4.0))
sketch6.addConstraint(Sketcher.Constraint("Radius", 5, 4.0))
sketch6.addConstraint(Sketcher.Constraint("Radius", 9, 4.0))
sketch6.addConstraint(Sketcher.Constraint("Radius", 13, 4.0))
sketch6.addConstraint(Sketcher.Constraint("Radius", 17, 4.0))
sketch6.addConstraint(Sketcher.Constraint("Radius", 21, 4.0))
sketch6.addConstraint(Sketcher.Constraint("Radius", 25, 4.0))
sketch6.addConstraint(Sketcher.Constraint("Radius", 29, 4.0))
sketch6.addConstraint(Sketcher.Constraint("Radius", 33, 4.0))
sketch6.addConstraint(Sketcher.Constraint("Radius", 37, 4.0))
sketch6.addConstraint(Sketcher.Constraint("Radius", 41, 4.0))
sketch6.addConstraint(Sketcher.Constraint("Radius", 45, 4.0))
sketch6.addConstraint(Sketcher.Constraint("Radius", 49, 4.0))
sketch6.addConstraint(Sketcher.Constraint("Radius", 53, 4.0))
sketch6.addConstraint(Sketcher.Constraint("Radius", 57, 4.0))
sketch6.addConstraint(Sketcher.Constraint("Radius", 61, 4.0))
sketch6.addConstraint(Sketcher.Constraint("Radius", 65, 4.0))
sketch6.addConstraint(Sketcher.Constraint("Radius", 69, 4.0))
sketch6.addConstraint(Sketcher.Constraint("Radius", 73, 4.0))
sketch6.addConstraint(Sketcher.Constraint("Radius", 77, 4.0))
sketch6.addConstraint(Sketcher.Constraint("DistanceX", 19, 2, 19, 1, 0.3))
sketch6.addConstraint(Sketcher.Constraint("DistanceX", 59, 1, 59, 2, 0.3))
sketch6.addConstraint(Sketcher.Constraint("DistanceY", 39, 2, 39, 1, 0.3))
sketch6.addConstraint(Sketcher.Constraint("DistanceY", 79, 1, 79, 2, 0.3))
sketch6.addConstraint(Sketcher.Constraint("Distance", 3, 0.3))
sketch6.addConstraint(Sketcher.Constraint("Distance", 7, 0.3))
sketch6.addConstraint(Sketcher.Constraint("Distance", 11, 0.3))
sketch6.addConstraint(Sketcher.Constraint("Distance", 15, 0.3))
sketch6.addConstraint(Sketcher.Constraint("Distance", 23, 0.3))
sketch6.addConstraint(Sketcher.Constraint("Distance", 27, 0.3))
sketch6.addConstraint(Sketcher.Constraint("Distance", 31, 0.3))
sketch6.addConstraint(Sketcher.Constraint("Distance", 35, 0.3))
sketch6.addConstraint(Sketcher.Constraint("Distance", 43, 0.3))
sketch6.addConstraint(Sketcher.Constraint("Distance", 47, 0.3))
sketch6.addConstraint(Sketcher.Constraint("Distance", 51, 0.3))
sketch6.addConstraint(Sketcher.Constraint("Distance", 55, 0.3))
sketch6.addConstraint(Sketcher.Constraint("Distance", 63, 0.3))
sketch6.addConstraint(Sketcher.Constraint("Distance", 67, 0.3))
sketch6.addConstraint(Sketcher.Constraint("Distance", 71, 0.3))
sketch6.addConstraint(Sketcher.Constraint("Distance", 75, 0.3))
sketch6.addConstraint(Sketcher.Constraint("DistanceY", -1, 1, 1, 3, 0.00689))
sketch6.addConstraint(Sketcher.Constraint("DistanceY", -1, 1, 0, 2, 0.40689))
sketch6.addConstraint(Sketcher.Constraint("DistanceX", -1, 1, 1, 2, 3.90641))
sketch6.addConstraint(Sketcher.Constraint("DistanceY", -1, 1, 1, 2, 0.856339))
sketch6.addConstraint(Sketcher.Constraint("DistanceX", -1, 1, 2, 2, 3.087379))
sketch6.addConstraint(Sketcher.Constraint("DistanceY", -1, 1, 5, 2, 2.022639))
sketch6.addConstraint(Sketcher.Constraint("DistanceX", -1, 1, 6, 2, 2.674668))
sketch6.addConstraint(Sketcher.Constraint("DistanceY", -1, 1, 6, 2, 1.76645))
sketch6.addConstraint(Sketcher.Constraint("DistanceX", -1, 1, 8, 2, 2.982379))
sketch6.addConstraint(Sketcher.Constraint("DistanceX", -1, 1, 9, 2, 2.660609))
sketch6.addConstraint(Sketcher.Constraint("DistanceX", -1, 1, 10, 2, 1.999911))
sketch6.addConstraint(Sketcher.Constraint("DistanceY", -1, 1, 11, 2, 2.683912))
sketch6.addConstraint(Sketcher.Constraint("DistanceY", -1, 1, 12, 2, 3.461851))
sketch6.addConstraint(Sketcher.Constraint("DistanceX", -1, 1, 13, 2, 1.607941))
sketch6.addConstraint(Sketcher.Constraint("DistanceX", -1, 1, 14, 2, 1.129159))
sketch6.addConstraint(Sketcher.Constraint("DistanceX", -1, 1, 15, 2, 0.843842))
sketch6.addConstraint(Sketcher.Constraint("DistanceY", -1, 1, 17, 2, 3.986839))
sketch6.addConstraint(Sketcher.Constraint("DistanceY", -1, 1, 18, 2, 3.20689))
sketch6.addConstraint(Sketcher.Constraint("DistanceY", -1, 1, 20, 2, 3.986839))
sketch6.addConstraint(Sketcher.Constraint("DistanceX", 22, 2, -1, 1, 0.84855))
sketch6.addConstraint(Sketcher.Constraint("DistanceX", 24, 2, -1, 1, 1.612649))
sketch6.addConstraint(Sketcher.Constraint("DistanceY", -1, 1, 25, 2, 3.461851))
sketch6.addConstraint(Sketcher.Constraint("DistanceY", -1, 1, 26, 2, 2.683912))
sketch6.addConstraint(Sketcher.Constraint("DistanceX", 27, 2, -1, 1, 2.004619))
sketch6.addConstraint(Sketcher.Constraint("DistanceX", 30, 2, -1, 1, 2.503041))
sketch6.addConstraint(Sketcher.Constraint("DistanceY", -1, 1, 31, 2, 1.76645))
sketch6.addConstraint(Sketcher.Constraint("DistanceY", -1, 1, 32, 2, 2.022639))
sketch6.addConstraint(Sketcher.Constraint("DistanceY", -1, 1, 36, 2, 0.856339))
sketch6.addConstraint(Sketcher.Constraint("DistanceY", -1, 1, 37, 2, 0.40689))
sketch6.addConstraint(Sketcher.Constraint("DistanceY", -1, 1, 38, 2, 0.15689))
sketch6.addConstraint(Sketcher.Constraint("DistanceY", 40, 2, -1, 1, 0.39311))
sketch6.addConstraint(Sketcher.Constraint("DistanceY", 41, 2, -1, 1, 0.84256))
sketch6.addConstraint(Sketcher.Constraint("DistanceY", 45, 2, -1, 1, 2.008859))
sketch6.addConstraint(Sketcher.Constraint("DistanceY", 46, 2, -1, 1, 1.752671))
sketch6.addConstraint(Sketcher.Constraint("DistanceX", 47, 2, -1, 1, 2.503041))
sketch6.addConstraint(Sketcher.Constraint("DistanceX", 50, 2, -1, 1, 2.004619))
sketch6.addConstraint(Sketcher.Constraint("DistanceY", 52, 2, -1, 1, 3.448071))
sketch6.addConstraint(Sketcher.Constraint("DistanceX", 53, 2, -1, 1, 1.612649))
sketch6.addConstraint(Sketcher.Constraint("DistanceY", 54, 2, -1, 1, 2.990139))
sketch6.addConstraint(Sketcher.Constraint("DistanceX", 55, 2, -1, 1, 0.84855))
sketch6.addConstraint(Sketcher.Constraint("DistanceY", 57, 2, -1, 1, 3.97306))
sketch6.addConstraint(Sketcher.Constraint("DistanceY", 58, 2, -1, 1, 3.19311))
sketch6.addConstraint(Sketcher.Constraint("DistanceY", 60, 2, -1, 1, 3.97306))
sketch6.addConstraint(Sketcher.Constraint("DistanceX", -1, 1, 62, 2, 0.843842))
sketch6.addConstraint(Sketcher.Constraint("DistanceX", -1, 1, 63, 2, 1.129159))
sketch6.addConstraint(Sketcher.Constraint("DistanceY", 63, 2, -1, 1, 2.990139))
sketch6.addConstraint(Sketcher.Constraint("DistanceX", -1, 1, 64, 2, 1.607941))
sketch6.addConstraint(Sketcher.Constraint("DistanceY", 65, 2, -1, 1, 3.448071))
sketch6.addConstraint(Sketcher.Constraint("DistanceX", -1, 1, 67, 2, 1.999911))
sketch6.addConstraint(Sketcher.Constraint("DistanceX", -1, 1, 68, 2, 2.660609))
sketch6.addConstraint(Sketcher.Constraint("DistanceX", -1, 1, 69, 2, 2.982379))
sketch6.addConstraint(Sketcher.Constraint("DistanceX", -1, 1, 71, 2, 2.674668))
sketch6.addConstraint(Sketcher.Constraint("DistanceY", 71, 2, -1, 1, 1.752671))
sketch6.addConstraint(Sketcher.Constraint("DistanceY", 72, 2, -1, 1, 2.008859))
sketch6.addConstraint(Sketcher.Constraint("DistanceX", -1, 1, 75, 2, 3.087379))
sketch6.addConstraint(Sketcher.Constraint("DistanceX", -1, 1, 76, 2, 3.90641))
sketch6.addConstraint(Sketcher.Constraint("DistanceY", 77, 2, -1, 1, 0.39311))
sketch6.addConstraint(Sketcher.Constraint("DistanceY", 78, 2, -1, 1, 0.14311))
sketch6.addConstraint(Sketcher.Constraint("Distance", 0, 0.819037))
sketch6.addConstraint(Sketcher.Constraint("Distance", 4, 0.819037))
sketch6.addConstraint(Sketcher.Constraint("Distance", 8, 0.819037))
sketch6.addConstraint(Sketcher.Constraint("Distance", 10, 0.819037))
sketch6.addConstraint(Sketcher.Constraint("Distance", 14, 0.819037))
sketch6.addConstraint(Sketcher.Constraint("Distance", 16, 0.819037))
sketch6.addConstraint(Sketcher.Constraint("Distance", 18, 0.819037))
sketch6.addConstraint(Sketcher.Constraint("Distance", 22, 0.819037))
sketch6.addConstraint(Sketcher.Constraint("Distance", 24, 0.819037))
sketch6.addConstraint(Sketcher.Constraint("Distance", 26, 0.819037))
sketch6.addConstraint(Sketcher.Constraint("Distance", 28, 0.819037))
sketch6.addConstraint(Sketcher.Constraint("Distance", 30, 0.819037))
sketch6.addConstraint(Sketcher.Constraint("Distance", 32, 0.819037))
sketch6.addConstraint(Sketcher.Constraint("Distance", 34, 0.819037))
sketch6.addConstraint(Sketcher.Constraint("Distance", 36, 0.819037))
sketch6.addConstraint(Sketcher.Constraint("Distance", 38, 0.819037))
sketch6.addConstraint(Sketcher.Constraint("Distance", 42, 0.819037))
sketch6.addConstraint(Sketcher.Constraint("Distance", 44, 0.819037))
sketch6.addConstraint(Sketcher.Constraint("Distance", 46, 0.819037))
sketch6.addConstraint(Sketcher.Constraint("Distance", 48, 0.819037))
sketch6.addConstraint(Sketcher.Constraint("Distance", 50, 0.819037))
sketch6.addConstraint(Sketcher.Constraint("Distance", 52, 0.819037))
sketch6.addConstraint(Sketcher.Constraint("Distance", 54, 0.819037))
sketch6.addConstraint(Sketcher.Constraint("Distance", 56, 0.819037))
sketch6.addConstraint(Sketcher.Constraint("Distance", 58, 0.819037))
sketch6.addConstraint(Sketcher.Constraint("Distance", 62, 0.819037))
sketch6.addConstraint(Sketcher.Constraint("Distance", 66, 0.819037))
sketch6.addConstraint(Sketcher.Constraint("Distance", 68, 0.819037))
sketch6.addConstraint(Sketcher.Constraint("Distance", 70, 0.819037))
sketch6.addConstraint(Sketcher.Constraint("Distance", 74, 0.819037))
sketch6.addConstraint(Sketcher.Constraint("DistanceY", -1, 1, 2, 2, 0.853086))
sketch6.addConstraint(Sketcher.Constraint("DistanceX", -1, 1, 3, 2, 2.994674))
sketch6.addConstraint(Sketcher.Constraint("DistanceX", 21, 2, -1, 1, 0.851804))
sketch6.addConstraint(Sketcher.Constraint("DistanceX", 33, 2, -1, 1, 3.663904))
sketch6.addConstraint(Sketcher.Constraint("DistanceX", 34, 2, -1, 1, 2.999382))
sketch6.addConstraint(Sketcher.Constraint("DistanceY", 42, 2, -1, 1, 0.839306))
sketch6.addConstraint(Sketcher.Constraint("DistanceX", 43, 2, -1, 1, 2.999382))
sketch6.addConstraint(Sketcher.Constraint("DistanceX", 49, 2, -1, 1, 2.665317))
sketch6.addConstraint(Sketcher.Constraint("DistanceX", -1, 1, 73, 2, 3.659196))
sketch6.addConstraint(Sketcher.Constraint("DistanceX", -1, 1, 74, 2, 2.994674))
pocket4 = body.newObject("PartDesign::Pocket", "Pocket003")
pocket4.Profile = sketch6
pocket4.Length = 5

doc.recompute()
